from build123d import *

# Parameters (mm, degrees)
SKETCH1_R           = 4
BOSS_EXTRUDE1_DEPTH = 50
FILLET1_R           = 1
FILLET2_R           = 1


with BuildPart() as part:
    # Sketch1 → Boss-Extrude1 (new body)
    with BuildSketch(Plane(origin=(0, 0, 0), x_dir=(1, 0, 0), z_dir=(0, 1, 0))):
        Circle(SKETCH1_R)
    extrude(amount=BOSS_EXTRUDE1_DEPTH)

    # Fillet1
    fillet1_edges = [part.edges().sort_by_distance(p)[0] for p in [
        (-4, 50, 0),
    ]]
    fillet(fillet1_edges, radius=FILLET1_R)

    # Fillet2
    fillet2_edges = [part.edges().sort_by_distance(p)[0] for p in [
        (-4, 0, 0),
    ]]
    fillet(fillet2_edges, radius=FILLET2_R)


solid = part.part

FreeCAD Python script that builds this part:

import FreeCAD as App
import Part
import Sketcher

V = App.Vector
Q = App.Units.Quantity


def edges_at(feature, points):
    """Names of the edges that pass closest to the given points."""
    edges = feature.Shape.Edges
    near = lambda p: min(range(len(edges)), key=lambda i: edges[i].distToShape(Part.Vertex(*p))[0])
    return sorted({f"Edge{near(p) + 1}" for p in points})

doc = App.newDocument("Part")
body = doc.addObject("PartDesign::Body", "Body")

sketch1 = doc.addObject("Sketcher::SketchObject", "Sketch")
body.addObject(sketch1)
sketch1.AttachmentSupport = (doc.XZ_Plane, [""])
sketch1.MapMode = "FlatFace"
sketch1.addGeometry(Part.Circle(V(0, 0, 0), V(0, 0, 1), 4), False)
sketch1.addConstraint(Sketcher.Constraint("Coincident", 0, 3, -1, 1))
sketch1.addConstraint(Sketcher.Constraint("Diameter", 0, Q("8 mm")))
pad1 = doc.addObject("PartDesign::Pad", "Pad")
body.addObject(pad1)
pad1.Profile = sketch1
pad1.Length = 50
pad1.Reversed = True
doc.recompute()

fillet = doc.addObject("PartDesign::Fillet", "Fillet")
body.addObject(fillet)
fillet.Base = (pad1, edges_at(pad1, [(-4, 50, 0)]))
fillet.Radius = 1
doc.recompute()

fillet2 = doc.addObject("PartDesign::Fillet", "Fillet001")
body.addObject(fillet2)
fillet2.Base = (fillet, edges_at(fillet, [(-4, 0, 0)]))
fillet2.Radius = 1

doc.recompute()
